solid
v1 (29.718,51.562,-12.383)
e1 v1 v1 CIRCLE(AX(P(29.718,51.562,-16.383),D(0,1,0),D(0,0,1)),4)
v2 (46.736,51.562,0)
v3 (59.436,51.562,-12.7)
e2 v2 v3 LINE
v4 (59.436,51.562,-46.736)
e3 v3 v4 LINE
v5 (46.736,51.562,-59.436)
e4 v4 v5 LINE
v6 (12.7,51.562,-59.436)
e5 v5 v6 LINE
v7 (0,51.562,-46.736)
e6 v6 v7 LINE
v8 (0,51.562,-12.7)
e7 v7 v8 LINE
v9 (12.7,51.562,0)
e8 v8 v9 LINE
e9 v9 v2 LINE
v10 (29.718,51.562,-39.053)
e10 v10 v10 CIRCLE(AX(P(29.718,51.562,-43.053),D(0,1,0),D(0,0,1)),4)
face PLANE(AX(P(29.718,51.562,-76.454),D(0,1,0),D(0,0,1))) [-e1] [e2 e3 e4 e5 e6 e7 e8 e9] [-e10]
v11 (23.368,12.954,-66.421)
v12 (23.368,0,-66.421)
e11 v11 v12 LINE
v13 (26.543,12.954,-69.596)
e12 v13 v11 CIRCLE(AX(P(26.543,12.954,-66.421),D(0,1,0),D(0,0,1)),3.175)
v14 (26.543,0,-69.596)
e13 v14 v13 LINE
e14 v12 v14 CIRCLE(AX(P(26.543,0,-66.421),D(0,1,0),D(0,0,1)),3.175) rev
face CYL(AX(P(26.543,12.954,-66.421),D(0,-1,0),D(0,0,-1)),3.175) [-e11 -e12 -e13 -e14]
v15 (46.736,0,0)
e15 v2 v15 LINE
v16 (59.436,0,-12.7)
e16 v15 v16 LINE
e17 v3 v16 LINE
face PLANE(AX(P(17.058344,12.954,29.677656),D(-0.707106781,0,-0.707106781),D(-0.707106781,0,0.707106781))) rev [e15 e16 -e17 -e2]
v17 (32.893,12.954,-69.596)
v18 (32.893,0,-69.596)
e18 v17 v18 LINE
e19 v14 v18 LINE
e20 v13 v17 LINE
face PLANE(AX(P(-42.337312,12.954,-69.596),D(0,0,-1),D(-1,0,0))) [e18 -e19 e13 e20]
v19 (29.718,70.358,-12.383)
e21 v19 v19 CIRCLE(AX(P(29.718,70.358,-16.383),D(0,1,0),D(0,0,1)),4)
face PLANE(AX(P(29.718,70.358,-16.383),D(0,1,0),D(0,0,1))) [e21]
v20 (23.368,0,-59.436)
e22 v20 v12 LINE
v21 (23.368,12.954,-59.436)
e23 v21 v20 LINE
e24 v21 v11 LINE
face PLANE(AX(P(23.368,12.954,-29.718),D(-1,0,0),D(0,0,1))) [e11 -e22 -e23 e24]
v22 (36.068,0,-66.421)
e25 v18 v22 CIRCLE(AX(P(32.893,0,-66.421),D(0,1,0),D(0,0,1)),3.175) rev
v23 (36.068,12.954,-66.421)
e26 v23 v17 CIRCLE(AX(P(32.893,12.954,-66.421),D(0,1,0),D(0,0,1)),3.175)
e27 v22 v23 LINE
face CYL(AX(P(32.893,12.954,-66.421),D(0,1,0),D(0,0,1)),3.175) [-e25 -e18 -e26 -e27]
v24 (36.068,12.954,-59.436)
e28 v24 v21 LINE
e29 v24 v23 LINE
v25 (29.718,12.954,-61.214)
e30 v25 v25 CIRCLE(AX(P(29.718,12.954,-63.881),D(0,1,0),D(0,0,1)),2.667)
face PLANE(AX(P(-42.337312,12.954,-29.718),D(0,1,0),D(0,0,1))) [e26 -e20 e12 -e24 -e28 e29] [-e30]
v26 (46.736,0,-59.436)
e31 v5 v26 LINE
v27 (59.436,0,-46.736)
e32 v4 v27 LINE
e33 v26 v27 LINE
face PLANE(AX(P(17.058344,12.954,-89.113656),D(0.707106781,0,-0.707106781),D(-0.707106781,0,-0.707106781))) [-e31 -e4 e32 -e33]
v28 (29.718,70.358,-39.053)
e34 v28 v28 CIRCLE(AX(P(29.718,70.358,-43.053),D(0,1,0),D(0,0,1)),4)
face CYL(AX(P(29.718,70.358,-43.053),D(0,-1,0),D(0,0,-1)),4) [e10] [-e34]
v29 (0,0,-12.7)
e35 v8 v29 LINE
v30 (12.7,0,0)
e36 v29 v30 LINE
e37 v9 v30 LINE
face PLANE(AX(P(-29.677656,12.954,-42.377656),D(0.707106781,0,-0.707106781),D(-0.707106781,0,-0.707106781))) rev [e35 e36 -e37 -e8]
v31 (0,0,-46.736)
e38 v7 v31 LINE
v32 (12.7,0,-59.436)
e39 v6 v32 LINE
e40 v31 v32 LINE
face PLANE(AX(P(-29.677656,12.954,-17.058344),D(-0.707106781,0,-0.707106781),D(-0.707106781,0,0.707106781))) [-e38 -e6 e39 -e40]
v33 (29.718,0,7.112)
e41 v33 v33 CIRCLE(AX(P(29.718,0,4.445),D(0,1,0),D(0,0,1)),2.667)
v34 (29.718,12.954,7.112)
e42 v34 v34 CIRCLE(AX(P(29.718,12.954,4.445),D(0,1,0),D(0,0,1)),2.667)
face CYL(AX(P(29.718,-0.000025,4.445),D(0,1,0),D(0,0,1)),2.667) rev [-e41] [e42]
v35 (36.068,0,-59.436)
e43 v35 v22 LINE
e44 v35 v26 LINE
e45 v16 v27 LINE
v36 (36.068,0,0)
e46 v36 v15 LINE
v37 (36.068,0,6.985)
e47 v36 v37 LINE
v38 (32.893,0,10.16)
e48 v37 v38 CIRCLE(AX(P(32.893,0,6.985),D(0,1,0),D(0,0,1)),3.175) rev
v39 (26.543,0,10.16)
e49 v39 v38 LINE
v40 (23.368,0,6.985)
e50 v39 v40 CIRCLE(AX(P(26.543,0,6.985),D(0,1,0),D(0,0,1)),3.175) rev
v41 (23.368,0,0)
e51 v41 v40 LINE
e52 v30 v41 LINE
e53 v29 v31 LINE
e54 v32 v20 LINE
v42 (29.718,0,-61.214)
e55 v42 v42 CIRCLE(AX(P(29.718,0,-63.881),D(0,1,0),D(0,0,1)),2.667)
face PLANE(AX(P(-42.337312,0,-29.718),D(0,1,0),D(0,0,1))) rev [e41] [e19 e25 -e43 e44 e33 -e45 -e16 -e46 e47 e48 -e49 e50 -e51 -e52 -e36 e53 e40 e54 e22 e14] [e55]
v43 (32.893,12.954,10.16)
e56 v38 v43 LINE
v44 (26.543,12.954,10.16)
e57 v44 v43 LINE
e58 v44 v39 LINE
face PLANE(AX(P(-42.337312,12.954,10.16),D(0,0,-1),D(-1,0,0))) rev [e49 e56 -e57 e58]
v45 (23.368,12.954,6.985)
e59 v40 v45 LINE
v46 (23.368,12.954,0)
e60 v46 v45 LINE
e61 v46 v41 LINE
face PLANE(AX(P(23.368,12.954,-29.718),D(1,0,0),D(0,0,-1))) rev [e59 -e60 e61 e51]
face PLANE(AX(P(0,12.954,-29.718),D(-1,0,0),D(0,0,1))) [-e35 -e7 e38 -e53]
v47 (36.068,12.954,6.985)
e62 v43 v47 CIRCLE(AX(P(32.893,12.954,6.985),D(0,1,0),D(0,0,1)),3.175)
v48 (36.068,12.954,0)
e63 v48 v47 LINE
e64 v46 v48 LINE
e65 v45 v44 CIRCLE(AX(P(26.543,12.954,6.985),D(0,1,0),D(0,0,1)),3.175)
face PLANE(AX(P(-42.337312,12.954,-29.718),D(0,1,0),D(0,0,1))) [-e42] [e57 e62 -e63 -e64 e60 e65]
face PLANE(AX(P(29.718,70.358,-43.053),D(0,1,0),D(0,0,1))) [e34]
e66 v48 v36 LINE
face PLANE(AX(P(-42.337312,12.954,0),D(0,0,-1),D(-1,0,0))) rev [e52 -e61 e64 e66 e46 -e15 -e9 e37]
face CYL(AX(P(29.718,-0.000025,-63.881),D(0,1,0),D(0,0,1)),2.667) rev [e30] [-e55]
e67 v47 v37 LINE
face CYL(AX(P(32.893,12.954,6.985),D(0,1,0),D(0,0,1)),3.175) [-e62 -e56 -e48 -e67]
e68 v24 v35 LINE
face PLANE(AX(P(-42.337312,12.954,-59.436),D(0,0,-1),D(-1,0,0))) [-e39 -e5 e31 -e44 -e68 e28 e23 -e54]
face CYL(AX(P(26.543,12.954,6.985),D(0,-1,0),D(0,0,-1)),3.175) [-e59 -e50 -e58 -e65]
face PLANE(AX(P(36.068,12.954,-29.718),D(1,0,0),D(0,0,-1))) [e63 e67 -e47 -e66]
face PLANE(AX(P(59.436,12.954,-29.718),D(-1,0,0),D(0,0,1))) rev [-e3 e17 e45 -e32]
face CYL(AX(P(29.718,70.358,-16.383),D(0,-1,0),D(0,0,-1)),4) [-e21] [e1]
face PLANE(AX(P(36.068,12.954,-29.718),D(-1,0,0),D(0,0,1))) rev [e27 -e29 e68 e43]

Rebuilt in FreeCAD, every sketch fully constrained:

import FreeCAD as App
import Part
import Sketcher
Q = App.Units.Quantity


def edges_at(feature, points):
    """Names of the edges that pass closest to the given points."""
    edges = feature.Shape.Edges
    near = lambda p: min(range(len(edges)), key=lambda i: edges[i].distToShape(Part.Vertex(*p))[0])
    return sorted({f"Edge{near(p) + 1}" for p in points})


def add_polygon(sketch, points):
    """Adds a closed chain of lines whose ends are joined by coincident constraints."""
    first, n = sketch.GeometryCount, len(points)
    for a, b in zip(points, points[1:] + points[:1]):
        sketch.addGeometry(Part.LineSegment(App.Vector(*a, 0), App.Vector(*b, 0)), False)
    for i in range(n):
        sketch.addConstraint(Sketcher.Constraint("Coincident", first + i, 2, first + (i + 1) % n, 1))

doc = App.newDocument("Part")
params = doc.addObject("Spreadsheet::Sheet", "Params")
for row, (alias, value) in enumerate([
    ("sketch1_width", "0.5 in"),
    ("sketch1_height", "0.4 in"),
    ("sketch1_width2", "0.42 in"),
    ("sketch1_height2", "1.34 in"),
    ("pad1_length", "0.51 in"),
    ("sketch2_width", "1.34 in"),
    ("pad2_length", "1.52 in"),
    ("sketch3_diameter", "0.21 in"),
    ("fillet_radius", "0.125 in"),
    ("pad3_length", "0.74 in"),
], start=1):
    params.set(f"A{row}", alias)
    params.set(f"B{row}", "=" + value)
    params.setAlias(f"B{row}", alias)

body = doc.addObject("PartDesign::Body", "Body")

# Sketch on XZ plane
sketch1 = body.newObject("Sketcher::SketchObject", "Sketch")
sketch1.AttachmentSupport = (doc.getObject("XZ_Plane"), [""])
sketch1.MapMode = "FlatFace"
add_polygon(sketch1, [(23, 0), (23, 10), (36, 10), (36, 0), (47, 0), (59, -13), (59, -47), (47, -59), (36, -59), (36, -70), (23, -70), (23, -59), (13, -59), (0, -47), (0, -13), (13, 0)])  # lines 0-15
sketch1.addConstraint(Sketcher.Constraint("Vertical", 0))
sketch1.addConstraint(Sketcher.Constraint("Horizontal", 1))
sketch1.addConstraint(Sketcher.Constraint("Vertical", 2))
sketch1.addConstraint(Sketcher.Constraint("Horizontal", 3))
sketch1.addConstraint(Sketcher.Constraint("Vertical", 5))
sketch1.addConstraint(Sketcher.Constraint("Horizontal", 7))
sketch1.addConstraint(Sketcher.Constraint("Vertical", 8))
sketch1.addConstraint(Sketcher.Constraint("Horizontal", 9))
sketch1.addConstraint(Sketcher.Constraint("Vertical", 10))
sketch1.addConstraint(Sketcher.Constraint("Horizontal", 11))
sketch1.addConstraint(Sketcher.Constraint("Vertical", 13))
sketch1.addConstraint(Sketcher.Constraint("Horizontal", 15))
sketch1.addConstraint(Sketcher.Constraint("PointOnObject", 2, 2, -1))
sketch1.addConstraint(Sketcher.Constraint("PointOnObject", 12, 2, -2))
sketch1.addConstraint(Sketcher.Constraint("PointOnObject", 14, 2, -1))
sketch1.addConstraint(Sketcher.Constraint("Perpendicular", 4, 6))
sketch1.addConstraint(Sketcher.Constraint("Perpendicular", 6, 12))
sketch1.addConstraint(Sketcher.Constraint("Perpendicular", 12, 14))
sketch1.addConstraint(Sketcher.Constraint("Horizontal", 7, 2, 10, 2))
sketch1.addConstraint(Sketcher.Constraint("Horizontal", 5, 2, 12, 2))
sketch1.addConstraint(Sketcher.Constraint("Horizontal", 4, 2, 13, 2))
sketch1.addConstraint(Sketcher.Constraint("Vertical", 3, 2, 6, 2))
sketch1.addConstraint(Sketcher.Constraint("Vertical", 2, 2, 7, 2))
sketch1.addConstraint(Sketcher.Constraint("Vertical", 0, 2, 9, 2))
sketch1.addConstraint(Sketcher.Constraint("Vertical", 11, 2, 14, 2))
sketch1.addConstraint(Sketcher.Constraint("Equal", 7, 11))
sketch1.addConstraint(Sketcher.Constraint("Equal", 2, 8))
sketch1.addConstraint(Sketcher.Constraint("DistanceX", 1, 1, 1, 2, Q("0.5 in")))
sketch1.addConstraint(Sketcher.Constraint("DistanceY", 0, 1, 0, 2, Q("0.4 in")))
sketch1.addConstraint(Sketcher.Constraint("DistanceX", 3, 1, 3, 2, Q("0.42 in")))
sketch1.addConstraint(Sketcher.Constraint("DistanceY", 5, 2, 5, 1, Q("1.34 in")))
sketch1.addConstraint(Sketcher.Constraint("DistanceY", 4, 2, -1, 1, Q("0.5 in")))
sketch1.setExpression("Constraints[43]", "Params.sketch1_width")
sketch1.setExpression("Constraints[44]", "Params.sketch1_height")
sketch1.setExpression("Constraints[45]", "Params.sketch1_width2")
sketch1.setExpression("Constraints[46]", "Params.sketch1_height2")
pad1 = body.newObject("PartDesign::Pad", "Pad")
pad1.Profile = sketch1
pad1.setExpression("Length", "Params.pad1_length")
pad1.Reversed = True

# Sketch on XZ plane
sketch2 = body.newObject("Sketcher::SketchObject", "Sketch001")
sketch2.AttachmentSupport = (doc.getObject("XZ_Plane"), [""])
sketch2.MapMode = "FlatFace"
sketch2.AttachmentOffset = App.Placement(App.Vector(0, 0, -0.51 * 25.4), App.Rotation())
add_polygon(sketch2, [(47, -59), (13, -59), (0, -47), (0, -13), (13, 0), (47, 0), (59, -13), (59, -47)])  # lines 0-7
sketch2.addConstraint(Sketcher.Constraint("Horizontal", 0))
sketch2.addConstraint(Sketcher.Constraint("Vertical", 2))
sketch2.addConstraint(Sketcher.Constraint("Horizontal", 4))
sketch2.addConstraint(Sketcher.Constraint("Vertical", 6))
sketch2.addConstraint(Sketcher.Constraint("PointOnObject", 1, 2, -2))
sketch2.addConstraint(Sketcher.Constraint("PointOnObject", 3, 2, -1))
sketch2.addConstraint(Sketcher.Constraint("Perpendicular", 1, 3))
sketch2.addConstraint(Sketcher.Constraint("Perpendicular", 3, 5))
sketch2.addConstraint(Sketcher.Constraint("Perpendicular", 5, 7))
sketch2.addConstraint(Sketcher.Constraint("Horizontal", 2, 2, 5, 2))
sketch2.addConstraint(Sketcher.Constraint("Horizontal", 1, 2, 6, 2))
sketch2.addConstraint(Sketcher.Constraint("Vertical", 0, 2, 3, 2))
sketch2.addConstraint(Sketcher.Constraint("Vertical", 4, 2, 7, 2))
sketch2.addConstraint(Sketcher.Constraint("Equal", 4, 2))
sketch2.addConstraint(Sketcher.Constraint("DistanceX", 0, 2, 0, 1, Q("1.34 in")))
sketch2.addConstraint(Sketcher.Constraint("DistanceX", -1, 1, 0, 2, Q("0.5 in")))
sketch2.setExpression("Constraints[22]", "Params.sketch2_width")
pad2 = body.newObject("PartDesign::Pad", "Pad001")
pad2.Profile = sketch2
pad2.setExpression("Length", "Params.pad2_length")
pad2.Reversed = True

# Sketch on XZ plane
sketch3 = body.newObject("Sketcher::SketchObject", "Sketch002")
sketch3.AttachmentSupport = (doc.getObject("XZ_Plane"), [""])
sketch3.MapMode = "FlatFace"
sketch3.AttachmentOffset = App.Placement(App.Vector(0, 0, -0.51 * 25.4), App.Rotation())
sketch3.addGeometry(Part.Circle(App.Vector(29.7, -63.9, 0), App.Vector(0, 0, 1), 2.7), False)
sketch3.addGeometry(Part.Circle(App.Vector(29.7, 4.4, 0), App.Vector(0, 0, 1), 2.7), False)
sketch3.addConstraint(Sketcher.Constraint("Equal", 0, 1))
sketch3.addConstraint(Sketcher.Constraint("Vertical", 0, 3, 1, 3))
sketch3.addConstraint(Sketcher.Constraint("Diameter", 0, Q("0.21 in")))
sketch3.addConstraint(Sketcher.Constraint("DistanceX", -1, 1, 0, 3, Q("1.17 in")))
sketch3.addConstraint(Sketcher.Constraint("DistanceY", 0, 3, 1, 3, Q("2.69 in")))
sketch3.addConstraint(Sketcher.Constraint("DistanceY", 0, 3, -1, 1, Q("2.515 in")))
sketch3.setExpression("Constraints[2]", "Params.sketch3_diameter")
pocket1 = body.newObject("PartDesign::Pocket", "Pocket")
pocket1.Profile = sketch3
pocket1.Type = "ThroughAll"
pocket1.Reversed = True
doc.recompute()

fillet = body.newObject("PartDesign::Fillet", "Fillet")
fillet.Base = (pocket1, edges_at(pocket1, [
    (36.068, 6.477, 10.16),
    (23.368, 6.477, 10.16),
    (23.368, 6.477, -69.596),
    (36.068, 6.477, -69.596),
]))
fillet.setExpression("Radius", "Params.fillet_radius")

# Sketch on XZ plane
sketch4 = body.newObject("Sketcher::SketchObject", "Sketch003")
sketch4.AttachmentSupport = (doc.getObject("XZ_Plane"), [""])
sketch4.MapMode = "FlatFace"
sketch4.AttachmentOffset = App.Placement(App.Vector(0, 0, -2.03 * 25.4), App.Rotation())
sketch4.addGeometry(Part.Circle(App.Vector(29.7, -43.1, 0), App.Vector(0, 0, 1), 4), False)
sketch4.addGeometry(Part.Circle(App.Vector(29.7, -16.4, 0), App.Vector(0, 0, 1), 4), False)
sketch4.addConstraint(Sketcher.Constraint("Equal", 0, 1))
sketch4.addConstraint(Sketcher.Constraint("Vertical", 0, 3, 1, 3))
sketch4.addConstraint(Sketcher.Constraint("Diameter", 0, 8.0))
sketch4.addConstraint(Sketcher.Constraint("DistanceX", -1, 1, 0, 3, Q("1.17 in")))
sketch4.addConstraint(Sketcher.Constraint("DistanceY", 0, 3, 1, 3, Q("1.05 in")))
sketch4.addConstraint(Sketcher.Constraint("DistanceY", 0, 3, -1, 1, Q("1.695 in")))
pad3 = body.newObject("PartDesign::Pad", "Pad002")
pad3.Profile = sketch4
pad3.setExpression("Length", "Params.pad3_length")
pad3.Reversed = True

doc.recompute()
